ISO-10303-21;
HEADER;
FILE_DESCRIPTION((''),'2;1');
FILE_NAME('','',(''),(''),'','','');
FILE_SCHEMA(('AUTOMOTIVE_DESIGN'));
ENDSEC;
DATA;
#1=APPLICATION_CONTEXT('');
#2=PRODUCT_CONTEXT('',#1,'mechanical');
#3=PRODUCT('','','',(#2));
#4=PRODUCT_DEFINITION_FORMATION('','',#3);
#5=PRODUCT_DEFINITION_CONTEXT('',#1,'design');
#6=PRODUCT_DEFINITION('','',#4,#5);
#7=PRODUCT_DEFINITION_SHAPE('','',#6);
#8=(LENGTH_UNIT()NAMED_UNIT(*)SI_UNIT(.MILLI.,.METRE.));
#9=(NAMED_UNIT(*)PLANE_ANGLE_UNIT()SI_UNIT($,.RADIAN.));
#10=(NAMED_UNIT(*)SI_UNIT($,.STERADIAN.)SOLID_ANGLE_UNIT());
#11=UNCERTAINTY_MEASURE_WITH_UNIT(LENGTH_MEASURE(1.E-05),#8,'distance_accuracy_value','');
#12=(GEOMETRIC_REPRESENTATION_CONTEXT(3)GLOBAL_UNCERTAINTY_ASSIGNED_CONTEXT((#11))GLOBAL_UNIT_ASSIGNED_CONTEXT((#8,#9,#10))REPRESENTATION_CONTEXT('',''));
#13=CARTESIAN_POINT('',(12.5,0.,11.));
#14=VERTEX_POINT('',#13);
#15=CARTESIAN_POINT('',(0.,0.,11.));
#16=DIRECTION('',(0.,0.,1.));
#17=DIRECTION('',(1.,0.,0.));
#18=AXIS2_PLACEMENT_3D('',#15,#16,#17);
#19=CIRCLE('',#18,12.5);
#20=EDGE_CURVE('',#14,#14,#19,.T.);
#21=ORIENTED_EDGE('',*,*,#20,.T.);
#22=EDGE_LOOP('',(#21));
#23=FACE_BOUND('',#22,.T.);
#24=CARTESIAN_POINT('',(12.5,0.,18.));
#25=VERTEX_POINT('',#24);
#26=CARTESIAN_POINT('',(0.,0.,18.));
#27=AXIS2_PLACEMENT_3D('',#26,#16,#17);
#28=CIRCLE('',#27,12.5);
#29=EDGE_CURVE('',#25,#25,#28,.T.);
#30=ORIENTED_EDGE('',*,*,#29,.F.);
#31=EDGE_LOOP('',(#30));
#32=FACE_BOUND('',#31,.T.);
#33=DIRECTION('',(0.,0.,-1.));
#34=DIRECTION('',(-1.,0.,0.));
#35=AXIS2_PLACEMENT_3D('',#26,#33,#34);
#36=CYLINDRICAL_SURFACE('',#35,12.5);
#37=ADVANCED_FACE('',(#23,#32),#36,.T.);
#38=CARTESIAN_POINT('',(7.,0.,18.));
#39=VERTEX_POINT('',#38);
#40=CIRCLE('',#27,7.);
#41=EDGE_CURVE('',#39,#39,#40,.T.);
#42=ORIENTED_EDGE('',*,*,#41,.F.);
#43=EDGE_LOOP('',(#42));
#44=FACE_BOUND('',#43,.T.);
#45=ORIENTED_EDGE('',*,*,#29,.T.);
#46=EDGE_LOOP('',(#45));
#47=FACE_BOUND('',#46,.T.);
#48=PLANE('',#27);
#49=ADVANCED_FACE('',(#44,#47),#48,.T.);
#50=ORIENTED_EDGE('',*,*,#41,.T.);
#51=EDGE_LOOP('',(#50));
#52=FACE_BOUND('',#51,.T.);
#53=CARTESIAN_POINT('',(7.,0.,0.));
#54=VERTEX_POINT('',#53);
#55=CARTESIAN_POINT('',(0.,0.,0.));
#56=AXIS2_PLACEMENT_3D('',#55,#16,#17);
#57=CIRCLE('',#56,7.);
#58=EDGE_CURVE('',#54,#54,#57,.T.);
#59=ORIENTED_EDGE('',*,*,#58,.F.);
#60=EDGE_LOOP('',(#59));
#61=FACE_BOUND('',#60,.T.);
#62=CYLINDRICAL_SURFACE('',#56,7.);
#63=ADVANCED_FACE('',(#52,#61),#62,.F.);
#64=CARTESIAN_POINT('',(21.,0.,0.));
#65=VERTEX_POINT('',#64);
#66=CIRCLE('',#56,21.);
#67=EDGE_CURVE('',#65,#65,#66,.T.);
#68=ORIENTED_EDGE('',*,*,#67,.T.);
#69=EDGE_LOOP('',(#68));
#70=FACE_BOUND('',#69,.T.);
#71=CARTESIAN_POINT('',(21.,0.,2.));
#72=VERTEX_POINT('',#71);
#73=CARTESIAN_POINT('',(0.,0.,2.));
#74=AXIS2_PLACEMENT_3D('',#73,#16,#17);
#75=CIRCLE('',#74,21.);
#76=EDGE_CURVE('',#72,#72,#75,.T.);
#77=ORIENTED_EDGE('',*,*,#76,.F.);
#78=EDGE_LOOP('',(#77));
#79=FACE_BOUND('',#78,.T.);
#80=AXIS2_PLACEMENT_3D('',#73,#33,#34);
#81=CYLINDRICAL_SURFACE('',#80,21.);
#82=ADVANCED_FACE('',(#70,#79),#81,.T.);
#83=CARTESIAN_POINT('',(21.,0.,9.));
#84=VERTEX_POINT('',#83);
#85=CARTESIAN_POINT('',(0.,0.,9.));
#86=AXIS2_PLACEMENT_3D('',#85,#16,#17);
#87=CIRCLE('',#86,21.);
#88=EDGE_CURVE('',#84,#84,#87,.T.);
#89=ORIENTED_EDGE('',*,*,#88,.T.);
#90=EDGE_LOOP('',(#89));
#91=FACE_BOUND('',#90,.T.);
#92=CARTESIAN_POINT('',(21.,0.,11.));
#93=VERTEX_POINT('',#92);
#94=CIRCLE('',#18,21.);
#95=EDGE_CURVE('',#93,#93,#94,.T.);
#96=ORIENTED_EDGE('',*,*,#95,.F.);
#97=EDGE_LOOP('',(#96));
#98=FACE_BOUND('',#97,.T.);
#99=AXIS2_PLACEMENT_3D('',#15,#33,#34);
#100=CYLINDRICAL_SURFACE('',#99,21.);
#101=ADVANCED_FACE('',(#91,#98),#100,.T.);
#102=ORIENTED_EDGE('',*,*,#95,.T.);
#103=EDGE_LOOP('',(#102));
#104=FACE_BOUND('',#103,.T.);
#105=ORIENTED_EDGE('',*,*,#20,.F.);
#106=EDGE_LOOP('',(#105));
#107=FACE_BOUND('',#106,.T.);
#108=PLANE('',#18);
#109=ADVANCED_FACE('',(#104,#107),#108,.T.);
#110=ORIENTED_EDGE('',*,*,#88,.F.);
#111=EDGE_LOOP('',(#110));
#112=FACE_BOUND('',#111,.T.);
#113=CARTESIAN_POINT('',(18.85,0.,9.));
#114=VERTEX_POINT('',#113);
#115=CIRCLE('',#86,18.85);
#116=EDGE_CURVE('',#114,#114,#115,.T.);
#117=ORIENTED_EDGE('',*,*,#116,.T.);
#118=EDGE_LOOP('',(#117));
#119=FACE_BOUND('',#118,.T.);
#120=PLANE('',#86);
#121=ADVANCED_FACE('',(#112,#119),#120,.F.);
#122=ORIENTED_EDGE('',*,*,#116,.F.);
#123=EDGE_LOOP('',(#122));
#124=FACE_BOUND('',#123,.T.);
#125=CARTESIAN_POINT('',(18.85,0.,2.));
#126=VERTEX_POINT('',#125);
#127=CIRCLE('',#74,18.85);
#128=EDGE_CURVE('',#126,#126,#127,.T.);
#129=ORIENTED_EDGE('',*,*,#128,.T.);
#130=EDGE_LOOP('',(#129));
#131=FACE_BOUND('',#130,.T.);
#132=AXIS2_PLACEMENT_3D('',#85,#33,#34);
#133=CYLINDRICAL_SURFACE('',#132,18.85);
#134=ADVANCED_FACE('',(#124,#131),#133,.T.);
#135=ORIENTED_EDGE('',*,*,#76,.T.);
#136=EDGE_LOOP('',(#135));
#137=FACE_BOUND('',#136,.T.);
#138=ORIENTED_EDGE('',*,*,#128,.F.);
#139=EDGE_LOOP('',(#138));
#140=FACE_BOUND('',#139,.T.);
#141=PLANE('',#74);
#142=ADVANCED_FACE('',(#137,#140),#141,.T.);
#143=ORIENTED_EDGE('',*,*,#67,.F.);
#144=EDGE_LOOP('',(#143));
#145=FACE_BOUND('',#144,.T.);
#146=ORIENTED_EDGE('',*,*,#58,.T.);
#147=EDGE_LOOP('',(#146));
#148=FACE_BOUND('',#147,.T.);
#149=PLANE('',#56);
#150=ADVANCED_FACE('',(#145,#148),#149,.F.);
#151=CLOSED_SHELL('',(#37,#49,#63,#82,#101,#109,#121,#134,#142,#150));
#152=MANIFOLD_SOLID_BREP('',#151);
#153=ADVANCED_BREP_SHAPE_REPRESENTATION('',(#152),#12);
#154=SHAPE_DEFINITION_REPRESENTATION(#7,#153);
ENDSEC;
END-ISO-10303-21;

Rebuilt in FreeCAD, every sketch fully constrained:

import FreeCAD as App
import Part
import Sketcher

V = App.Vector
Q = App.Units.Quantity

doc = App.newDocument("Part")
body = doc.addObject("PartDesign::Body", "Body")

# Sketch on XY plane
sketch1 = body.newObject("Sketcher::SketchObject", "Sketch")
sketch1.AttachmentSupport = (doc.getObject("XY_Plane"), [""])
sketch1.MapMode = "FlatFace"
sketch1.addGeometry(Part.Circle(V(0, 0, 0), V(0, 0, 1), 21), False)
sketch1.addConstraint([
    Sketcher.Constraint("Coincident", 0, 3, -1, 1),
    Sketcher.Constraint("Diameter", 0, Q("42 mm")),
])
pad1 = body.newObject("PartDesign::Pad", "Pad")
pad1.Profile = sketch1
pad1.Length = 2

# Sketch on XY plane
sketch2 = body.newObject("Sketcher::SketchObject", "Sketch001")
sketch2.AttachmentSupport = (doc.getObject("XY_Plane"), [""])
sketch2.MapMode = "FlatFace"
sketch2.AttachmentOffset = App.Placement(V(0, 0, 2), App.Rotation())
sketch2.addGeometry(Part.Circle(V(0, 0, 0), V(0, 0, 1), 19), False)
sketch2.addConstraint([
    Sketcher.Constraint("Coincident", 0, 3, -1, 1),
    Sketcher.Constraint("Diameter", 0, Q("37.7 mm")),
])
pad2 = body.newObject("PartDesign::Pad", "Pad001")
pad2.Profile = sketch2
pad2.Length = 7

# Sketch on XY plane
sketch3 = body.newObject("Sketcher::SketchObject", "Sketch002")
sketch3.AttachmentSupport = (doc.getObject("XY_Plane"), [""])
sketch3.MapMode = "FlatFace"
sketch3.AttachmentOffset = App.Placement(V(0, 0, 9), App.Rotation())
sketch3.addGeometry(Part.Circle(V(0, 0, 0), V(0, 0, 1), 21), False)
sketch3.addConstraint([
    Sketcher.Constraint("Coincident", 0, 3, -1, 1),
    Sketcher.Constraint("Diameter", 0, Q("42 mm")),
])
pad3 = body.newObject("PartDesign::Pad", "Pad002")
pad3.Profile = sketch3
pad3.Length = 2

# Sketch on XY plane
sketch4 = body.newObject("Sketcher::SketchObject", "Sketch003")
sketch4.AttachmentSupport = (doc.getObject("XY_Plane"), [""])
sketch4.MapMode = "FlatFace"
sketch4.AttachmentOffset = App.Placement(V(0, 0, 11), App.Rotation())
sketch4.addGeometry(Part.Circle(V(0, 0, 0), V(0, 0, 1), 12), False)
sketch4.addConstraint([
    Sketcher.Constraint("Coincident", 0, 3, -1, 1),
    Sketcher.Constraint("Diameter", 0, Q("25 mm")),
])
pad4 = body.newObject("PartDesign::Pad", "Pad003")
pad4.Profile = sketch4
pad4.Length = 7

# Sketch on XY plane
sketch5 = body.newObject("Sketcher::SketchObject", "Sketch004")
sketch5.AttachmentSupport = (doc.getObject("XY_Plane"), [""])
sketch5.MapMode = "FlatFace"
sketch5.AttachmentOffset = App.Placement(V(0, 0, 18), App.Rotation())
sketch5.addGeometry(Part.Circle(V(0, 0, 0), V(0, 0, 1), 7), False)
sketch5.addConstraint([
    Sketcher.Constraint("Coincident", 0, 3, -1, 1),
    Sketcher.Constraint("Diameter", 0, Q("14 mm")),
])
pocket1 = body.newObject("PartDesign::Pocket", "Pocket")
pocket1.Profile = sketch5
pocket1.Type = "ThroughAll"

doc.recompute()
